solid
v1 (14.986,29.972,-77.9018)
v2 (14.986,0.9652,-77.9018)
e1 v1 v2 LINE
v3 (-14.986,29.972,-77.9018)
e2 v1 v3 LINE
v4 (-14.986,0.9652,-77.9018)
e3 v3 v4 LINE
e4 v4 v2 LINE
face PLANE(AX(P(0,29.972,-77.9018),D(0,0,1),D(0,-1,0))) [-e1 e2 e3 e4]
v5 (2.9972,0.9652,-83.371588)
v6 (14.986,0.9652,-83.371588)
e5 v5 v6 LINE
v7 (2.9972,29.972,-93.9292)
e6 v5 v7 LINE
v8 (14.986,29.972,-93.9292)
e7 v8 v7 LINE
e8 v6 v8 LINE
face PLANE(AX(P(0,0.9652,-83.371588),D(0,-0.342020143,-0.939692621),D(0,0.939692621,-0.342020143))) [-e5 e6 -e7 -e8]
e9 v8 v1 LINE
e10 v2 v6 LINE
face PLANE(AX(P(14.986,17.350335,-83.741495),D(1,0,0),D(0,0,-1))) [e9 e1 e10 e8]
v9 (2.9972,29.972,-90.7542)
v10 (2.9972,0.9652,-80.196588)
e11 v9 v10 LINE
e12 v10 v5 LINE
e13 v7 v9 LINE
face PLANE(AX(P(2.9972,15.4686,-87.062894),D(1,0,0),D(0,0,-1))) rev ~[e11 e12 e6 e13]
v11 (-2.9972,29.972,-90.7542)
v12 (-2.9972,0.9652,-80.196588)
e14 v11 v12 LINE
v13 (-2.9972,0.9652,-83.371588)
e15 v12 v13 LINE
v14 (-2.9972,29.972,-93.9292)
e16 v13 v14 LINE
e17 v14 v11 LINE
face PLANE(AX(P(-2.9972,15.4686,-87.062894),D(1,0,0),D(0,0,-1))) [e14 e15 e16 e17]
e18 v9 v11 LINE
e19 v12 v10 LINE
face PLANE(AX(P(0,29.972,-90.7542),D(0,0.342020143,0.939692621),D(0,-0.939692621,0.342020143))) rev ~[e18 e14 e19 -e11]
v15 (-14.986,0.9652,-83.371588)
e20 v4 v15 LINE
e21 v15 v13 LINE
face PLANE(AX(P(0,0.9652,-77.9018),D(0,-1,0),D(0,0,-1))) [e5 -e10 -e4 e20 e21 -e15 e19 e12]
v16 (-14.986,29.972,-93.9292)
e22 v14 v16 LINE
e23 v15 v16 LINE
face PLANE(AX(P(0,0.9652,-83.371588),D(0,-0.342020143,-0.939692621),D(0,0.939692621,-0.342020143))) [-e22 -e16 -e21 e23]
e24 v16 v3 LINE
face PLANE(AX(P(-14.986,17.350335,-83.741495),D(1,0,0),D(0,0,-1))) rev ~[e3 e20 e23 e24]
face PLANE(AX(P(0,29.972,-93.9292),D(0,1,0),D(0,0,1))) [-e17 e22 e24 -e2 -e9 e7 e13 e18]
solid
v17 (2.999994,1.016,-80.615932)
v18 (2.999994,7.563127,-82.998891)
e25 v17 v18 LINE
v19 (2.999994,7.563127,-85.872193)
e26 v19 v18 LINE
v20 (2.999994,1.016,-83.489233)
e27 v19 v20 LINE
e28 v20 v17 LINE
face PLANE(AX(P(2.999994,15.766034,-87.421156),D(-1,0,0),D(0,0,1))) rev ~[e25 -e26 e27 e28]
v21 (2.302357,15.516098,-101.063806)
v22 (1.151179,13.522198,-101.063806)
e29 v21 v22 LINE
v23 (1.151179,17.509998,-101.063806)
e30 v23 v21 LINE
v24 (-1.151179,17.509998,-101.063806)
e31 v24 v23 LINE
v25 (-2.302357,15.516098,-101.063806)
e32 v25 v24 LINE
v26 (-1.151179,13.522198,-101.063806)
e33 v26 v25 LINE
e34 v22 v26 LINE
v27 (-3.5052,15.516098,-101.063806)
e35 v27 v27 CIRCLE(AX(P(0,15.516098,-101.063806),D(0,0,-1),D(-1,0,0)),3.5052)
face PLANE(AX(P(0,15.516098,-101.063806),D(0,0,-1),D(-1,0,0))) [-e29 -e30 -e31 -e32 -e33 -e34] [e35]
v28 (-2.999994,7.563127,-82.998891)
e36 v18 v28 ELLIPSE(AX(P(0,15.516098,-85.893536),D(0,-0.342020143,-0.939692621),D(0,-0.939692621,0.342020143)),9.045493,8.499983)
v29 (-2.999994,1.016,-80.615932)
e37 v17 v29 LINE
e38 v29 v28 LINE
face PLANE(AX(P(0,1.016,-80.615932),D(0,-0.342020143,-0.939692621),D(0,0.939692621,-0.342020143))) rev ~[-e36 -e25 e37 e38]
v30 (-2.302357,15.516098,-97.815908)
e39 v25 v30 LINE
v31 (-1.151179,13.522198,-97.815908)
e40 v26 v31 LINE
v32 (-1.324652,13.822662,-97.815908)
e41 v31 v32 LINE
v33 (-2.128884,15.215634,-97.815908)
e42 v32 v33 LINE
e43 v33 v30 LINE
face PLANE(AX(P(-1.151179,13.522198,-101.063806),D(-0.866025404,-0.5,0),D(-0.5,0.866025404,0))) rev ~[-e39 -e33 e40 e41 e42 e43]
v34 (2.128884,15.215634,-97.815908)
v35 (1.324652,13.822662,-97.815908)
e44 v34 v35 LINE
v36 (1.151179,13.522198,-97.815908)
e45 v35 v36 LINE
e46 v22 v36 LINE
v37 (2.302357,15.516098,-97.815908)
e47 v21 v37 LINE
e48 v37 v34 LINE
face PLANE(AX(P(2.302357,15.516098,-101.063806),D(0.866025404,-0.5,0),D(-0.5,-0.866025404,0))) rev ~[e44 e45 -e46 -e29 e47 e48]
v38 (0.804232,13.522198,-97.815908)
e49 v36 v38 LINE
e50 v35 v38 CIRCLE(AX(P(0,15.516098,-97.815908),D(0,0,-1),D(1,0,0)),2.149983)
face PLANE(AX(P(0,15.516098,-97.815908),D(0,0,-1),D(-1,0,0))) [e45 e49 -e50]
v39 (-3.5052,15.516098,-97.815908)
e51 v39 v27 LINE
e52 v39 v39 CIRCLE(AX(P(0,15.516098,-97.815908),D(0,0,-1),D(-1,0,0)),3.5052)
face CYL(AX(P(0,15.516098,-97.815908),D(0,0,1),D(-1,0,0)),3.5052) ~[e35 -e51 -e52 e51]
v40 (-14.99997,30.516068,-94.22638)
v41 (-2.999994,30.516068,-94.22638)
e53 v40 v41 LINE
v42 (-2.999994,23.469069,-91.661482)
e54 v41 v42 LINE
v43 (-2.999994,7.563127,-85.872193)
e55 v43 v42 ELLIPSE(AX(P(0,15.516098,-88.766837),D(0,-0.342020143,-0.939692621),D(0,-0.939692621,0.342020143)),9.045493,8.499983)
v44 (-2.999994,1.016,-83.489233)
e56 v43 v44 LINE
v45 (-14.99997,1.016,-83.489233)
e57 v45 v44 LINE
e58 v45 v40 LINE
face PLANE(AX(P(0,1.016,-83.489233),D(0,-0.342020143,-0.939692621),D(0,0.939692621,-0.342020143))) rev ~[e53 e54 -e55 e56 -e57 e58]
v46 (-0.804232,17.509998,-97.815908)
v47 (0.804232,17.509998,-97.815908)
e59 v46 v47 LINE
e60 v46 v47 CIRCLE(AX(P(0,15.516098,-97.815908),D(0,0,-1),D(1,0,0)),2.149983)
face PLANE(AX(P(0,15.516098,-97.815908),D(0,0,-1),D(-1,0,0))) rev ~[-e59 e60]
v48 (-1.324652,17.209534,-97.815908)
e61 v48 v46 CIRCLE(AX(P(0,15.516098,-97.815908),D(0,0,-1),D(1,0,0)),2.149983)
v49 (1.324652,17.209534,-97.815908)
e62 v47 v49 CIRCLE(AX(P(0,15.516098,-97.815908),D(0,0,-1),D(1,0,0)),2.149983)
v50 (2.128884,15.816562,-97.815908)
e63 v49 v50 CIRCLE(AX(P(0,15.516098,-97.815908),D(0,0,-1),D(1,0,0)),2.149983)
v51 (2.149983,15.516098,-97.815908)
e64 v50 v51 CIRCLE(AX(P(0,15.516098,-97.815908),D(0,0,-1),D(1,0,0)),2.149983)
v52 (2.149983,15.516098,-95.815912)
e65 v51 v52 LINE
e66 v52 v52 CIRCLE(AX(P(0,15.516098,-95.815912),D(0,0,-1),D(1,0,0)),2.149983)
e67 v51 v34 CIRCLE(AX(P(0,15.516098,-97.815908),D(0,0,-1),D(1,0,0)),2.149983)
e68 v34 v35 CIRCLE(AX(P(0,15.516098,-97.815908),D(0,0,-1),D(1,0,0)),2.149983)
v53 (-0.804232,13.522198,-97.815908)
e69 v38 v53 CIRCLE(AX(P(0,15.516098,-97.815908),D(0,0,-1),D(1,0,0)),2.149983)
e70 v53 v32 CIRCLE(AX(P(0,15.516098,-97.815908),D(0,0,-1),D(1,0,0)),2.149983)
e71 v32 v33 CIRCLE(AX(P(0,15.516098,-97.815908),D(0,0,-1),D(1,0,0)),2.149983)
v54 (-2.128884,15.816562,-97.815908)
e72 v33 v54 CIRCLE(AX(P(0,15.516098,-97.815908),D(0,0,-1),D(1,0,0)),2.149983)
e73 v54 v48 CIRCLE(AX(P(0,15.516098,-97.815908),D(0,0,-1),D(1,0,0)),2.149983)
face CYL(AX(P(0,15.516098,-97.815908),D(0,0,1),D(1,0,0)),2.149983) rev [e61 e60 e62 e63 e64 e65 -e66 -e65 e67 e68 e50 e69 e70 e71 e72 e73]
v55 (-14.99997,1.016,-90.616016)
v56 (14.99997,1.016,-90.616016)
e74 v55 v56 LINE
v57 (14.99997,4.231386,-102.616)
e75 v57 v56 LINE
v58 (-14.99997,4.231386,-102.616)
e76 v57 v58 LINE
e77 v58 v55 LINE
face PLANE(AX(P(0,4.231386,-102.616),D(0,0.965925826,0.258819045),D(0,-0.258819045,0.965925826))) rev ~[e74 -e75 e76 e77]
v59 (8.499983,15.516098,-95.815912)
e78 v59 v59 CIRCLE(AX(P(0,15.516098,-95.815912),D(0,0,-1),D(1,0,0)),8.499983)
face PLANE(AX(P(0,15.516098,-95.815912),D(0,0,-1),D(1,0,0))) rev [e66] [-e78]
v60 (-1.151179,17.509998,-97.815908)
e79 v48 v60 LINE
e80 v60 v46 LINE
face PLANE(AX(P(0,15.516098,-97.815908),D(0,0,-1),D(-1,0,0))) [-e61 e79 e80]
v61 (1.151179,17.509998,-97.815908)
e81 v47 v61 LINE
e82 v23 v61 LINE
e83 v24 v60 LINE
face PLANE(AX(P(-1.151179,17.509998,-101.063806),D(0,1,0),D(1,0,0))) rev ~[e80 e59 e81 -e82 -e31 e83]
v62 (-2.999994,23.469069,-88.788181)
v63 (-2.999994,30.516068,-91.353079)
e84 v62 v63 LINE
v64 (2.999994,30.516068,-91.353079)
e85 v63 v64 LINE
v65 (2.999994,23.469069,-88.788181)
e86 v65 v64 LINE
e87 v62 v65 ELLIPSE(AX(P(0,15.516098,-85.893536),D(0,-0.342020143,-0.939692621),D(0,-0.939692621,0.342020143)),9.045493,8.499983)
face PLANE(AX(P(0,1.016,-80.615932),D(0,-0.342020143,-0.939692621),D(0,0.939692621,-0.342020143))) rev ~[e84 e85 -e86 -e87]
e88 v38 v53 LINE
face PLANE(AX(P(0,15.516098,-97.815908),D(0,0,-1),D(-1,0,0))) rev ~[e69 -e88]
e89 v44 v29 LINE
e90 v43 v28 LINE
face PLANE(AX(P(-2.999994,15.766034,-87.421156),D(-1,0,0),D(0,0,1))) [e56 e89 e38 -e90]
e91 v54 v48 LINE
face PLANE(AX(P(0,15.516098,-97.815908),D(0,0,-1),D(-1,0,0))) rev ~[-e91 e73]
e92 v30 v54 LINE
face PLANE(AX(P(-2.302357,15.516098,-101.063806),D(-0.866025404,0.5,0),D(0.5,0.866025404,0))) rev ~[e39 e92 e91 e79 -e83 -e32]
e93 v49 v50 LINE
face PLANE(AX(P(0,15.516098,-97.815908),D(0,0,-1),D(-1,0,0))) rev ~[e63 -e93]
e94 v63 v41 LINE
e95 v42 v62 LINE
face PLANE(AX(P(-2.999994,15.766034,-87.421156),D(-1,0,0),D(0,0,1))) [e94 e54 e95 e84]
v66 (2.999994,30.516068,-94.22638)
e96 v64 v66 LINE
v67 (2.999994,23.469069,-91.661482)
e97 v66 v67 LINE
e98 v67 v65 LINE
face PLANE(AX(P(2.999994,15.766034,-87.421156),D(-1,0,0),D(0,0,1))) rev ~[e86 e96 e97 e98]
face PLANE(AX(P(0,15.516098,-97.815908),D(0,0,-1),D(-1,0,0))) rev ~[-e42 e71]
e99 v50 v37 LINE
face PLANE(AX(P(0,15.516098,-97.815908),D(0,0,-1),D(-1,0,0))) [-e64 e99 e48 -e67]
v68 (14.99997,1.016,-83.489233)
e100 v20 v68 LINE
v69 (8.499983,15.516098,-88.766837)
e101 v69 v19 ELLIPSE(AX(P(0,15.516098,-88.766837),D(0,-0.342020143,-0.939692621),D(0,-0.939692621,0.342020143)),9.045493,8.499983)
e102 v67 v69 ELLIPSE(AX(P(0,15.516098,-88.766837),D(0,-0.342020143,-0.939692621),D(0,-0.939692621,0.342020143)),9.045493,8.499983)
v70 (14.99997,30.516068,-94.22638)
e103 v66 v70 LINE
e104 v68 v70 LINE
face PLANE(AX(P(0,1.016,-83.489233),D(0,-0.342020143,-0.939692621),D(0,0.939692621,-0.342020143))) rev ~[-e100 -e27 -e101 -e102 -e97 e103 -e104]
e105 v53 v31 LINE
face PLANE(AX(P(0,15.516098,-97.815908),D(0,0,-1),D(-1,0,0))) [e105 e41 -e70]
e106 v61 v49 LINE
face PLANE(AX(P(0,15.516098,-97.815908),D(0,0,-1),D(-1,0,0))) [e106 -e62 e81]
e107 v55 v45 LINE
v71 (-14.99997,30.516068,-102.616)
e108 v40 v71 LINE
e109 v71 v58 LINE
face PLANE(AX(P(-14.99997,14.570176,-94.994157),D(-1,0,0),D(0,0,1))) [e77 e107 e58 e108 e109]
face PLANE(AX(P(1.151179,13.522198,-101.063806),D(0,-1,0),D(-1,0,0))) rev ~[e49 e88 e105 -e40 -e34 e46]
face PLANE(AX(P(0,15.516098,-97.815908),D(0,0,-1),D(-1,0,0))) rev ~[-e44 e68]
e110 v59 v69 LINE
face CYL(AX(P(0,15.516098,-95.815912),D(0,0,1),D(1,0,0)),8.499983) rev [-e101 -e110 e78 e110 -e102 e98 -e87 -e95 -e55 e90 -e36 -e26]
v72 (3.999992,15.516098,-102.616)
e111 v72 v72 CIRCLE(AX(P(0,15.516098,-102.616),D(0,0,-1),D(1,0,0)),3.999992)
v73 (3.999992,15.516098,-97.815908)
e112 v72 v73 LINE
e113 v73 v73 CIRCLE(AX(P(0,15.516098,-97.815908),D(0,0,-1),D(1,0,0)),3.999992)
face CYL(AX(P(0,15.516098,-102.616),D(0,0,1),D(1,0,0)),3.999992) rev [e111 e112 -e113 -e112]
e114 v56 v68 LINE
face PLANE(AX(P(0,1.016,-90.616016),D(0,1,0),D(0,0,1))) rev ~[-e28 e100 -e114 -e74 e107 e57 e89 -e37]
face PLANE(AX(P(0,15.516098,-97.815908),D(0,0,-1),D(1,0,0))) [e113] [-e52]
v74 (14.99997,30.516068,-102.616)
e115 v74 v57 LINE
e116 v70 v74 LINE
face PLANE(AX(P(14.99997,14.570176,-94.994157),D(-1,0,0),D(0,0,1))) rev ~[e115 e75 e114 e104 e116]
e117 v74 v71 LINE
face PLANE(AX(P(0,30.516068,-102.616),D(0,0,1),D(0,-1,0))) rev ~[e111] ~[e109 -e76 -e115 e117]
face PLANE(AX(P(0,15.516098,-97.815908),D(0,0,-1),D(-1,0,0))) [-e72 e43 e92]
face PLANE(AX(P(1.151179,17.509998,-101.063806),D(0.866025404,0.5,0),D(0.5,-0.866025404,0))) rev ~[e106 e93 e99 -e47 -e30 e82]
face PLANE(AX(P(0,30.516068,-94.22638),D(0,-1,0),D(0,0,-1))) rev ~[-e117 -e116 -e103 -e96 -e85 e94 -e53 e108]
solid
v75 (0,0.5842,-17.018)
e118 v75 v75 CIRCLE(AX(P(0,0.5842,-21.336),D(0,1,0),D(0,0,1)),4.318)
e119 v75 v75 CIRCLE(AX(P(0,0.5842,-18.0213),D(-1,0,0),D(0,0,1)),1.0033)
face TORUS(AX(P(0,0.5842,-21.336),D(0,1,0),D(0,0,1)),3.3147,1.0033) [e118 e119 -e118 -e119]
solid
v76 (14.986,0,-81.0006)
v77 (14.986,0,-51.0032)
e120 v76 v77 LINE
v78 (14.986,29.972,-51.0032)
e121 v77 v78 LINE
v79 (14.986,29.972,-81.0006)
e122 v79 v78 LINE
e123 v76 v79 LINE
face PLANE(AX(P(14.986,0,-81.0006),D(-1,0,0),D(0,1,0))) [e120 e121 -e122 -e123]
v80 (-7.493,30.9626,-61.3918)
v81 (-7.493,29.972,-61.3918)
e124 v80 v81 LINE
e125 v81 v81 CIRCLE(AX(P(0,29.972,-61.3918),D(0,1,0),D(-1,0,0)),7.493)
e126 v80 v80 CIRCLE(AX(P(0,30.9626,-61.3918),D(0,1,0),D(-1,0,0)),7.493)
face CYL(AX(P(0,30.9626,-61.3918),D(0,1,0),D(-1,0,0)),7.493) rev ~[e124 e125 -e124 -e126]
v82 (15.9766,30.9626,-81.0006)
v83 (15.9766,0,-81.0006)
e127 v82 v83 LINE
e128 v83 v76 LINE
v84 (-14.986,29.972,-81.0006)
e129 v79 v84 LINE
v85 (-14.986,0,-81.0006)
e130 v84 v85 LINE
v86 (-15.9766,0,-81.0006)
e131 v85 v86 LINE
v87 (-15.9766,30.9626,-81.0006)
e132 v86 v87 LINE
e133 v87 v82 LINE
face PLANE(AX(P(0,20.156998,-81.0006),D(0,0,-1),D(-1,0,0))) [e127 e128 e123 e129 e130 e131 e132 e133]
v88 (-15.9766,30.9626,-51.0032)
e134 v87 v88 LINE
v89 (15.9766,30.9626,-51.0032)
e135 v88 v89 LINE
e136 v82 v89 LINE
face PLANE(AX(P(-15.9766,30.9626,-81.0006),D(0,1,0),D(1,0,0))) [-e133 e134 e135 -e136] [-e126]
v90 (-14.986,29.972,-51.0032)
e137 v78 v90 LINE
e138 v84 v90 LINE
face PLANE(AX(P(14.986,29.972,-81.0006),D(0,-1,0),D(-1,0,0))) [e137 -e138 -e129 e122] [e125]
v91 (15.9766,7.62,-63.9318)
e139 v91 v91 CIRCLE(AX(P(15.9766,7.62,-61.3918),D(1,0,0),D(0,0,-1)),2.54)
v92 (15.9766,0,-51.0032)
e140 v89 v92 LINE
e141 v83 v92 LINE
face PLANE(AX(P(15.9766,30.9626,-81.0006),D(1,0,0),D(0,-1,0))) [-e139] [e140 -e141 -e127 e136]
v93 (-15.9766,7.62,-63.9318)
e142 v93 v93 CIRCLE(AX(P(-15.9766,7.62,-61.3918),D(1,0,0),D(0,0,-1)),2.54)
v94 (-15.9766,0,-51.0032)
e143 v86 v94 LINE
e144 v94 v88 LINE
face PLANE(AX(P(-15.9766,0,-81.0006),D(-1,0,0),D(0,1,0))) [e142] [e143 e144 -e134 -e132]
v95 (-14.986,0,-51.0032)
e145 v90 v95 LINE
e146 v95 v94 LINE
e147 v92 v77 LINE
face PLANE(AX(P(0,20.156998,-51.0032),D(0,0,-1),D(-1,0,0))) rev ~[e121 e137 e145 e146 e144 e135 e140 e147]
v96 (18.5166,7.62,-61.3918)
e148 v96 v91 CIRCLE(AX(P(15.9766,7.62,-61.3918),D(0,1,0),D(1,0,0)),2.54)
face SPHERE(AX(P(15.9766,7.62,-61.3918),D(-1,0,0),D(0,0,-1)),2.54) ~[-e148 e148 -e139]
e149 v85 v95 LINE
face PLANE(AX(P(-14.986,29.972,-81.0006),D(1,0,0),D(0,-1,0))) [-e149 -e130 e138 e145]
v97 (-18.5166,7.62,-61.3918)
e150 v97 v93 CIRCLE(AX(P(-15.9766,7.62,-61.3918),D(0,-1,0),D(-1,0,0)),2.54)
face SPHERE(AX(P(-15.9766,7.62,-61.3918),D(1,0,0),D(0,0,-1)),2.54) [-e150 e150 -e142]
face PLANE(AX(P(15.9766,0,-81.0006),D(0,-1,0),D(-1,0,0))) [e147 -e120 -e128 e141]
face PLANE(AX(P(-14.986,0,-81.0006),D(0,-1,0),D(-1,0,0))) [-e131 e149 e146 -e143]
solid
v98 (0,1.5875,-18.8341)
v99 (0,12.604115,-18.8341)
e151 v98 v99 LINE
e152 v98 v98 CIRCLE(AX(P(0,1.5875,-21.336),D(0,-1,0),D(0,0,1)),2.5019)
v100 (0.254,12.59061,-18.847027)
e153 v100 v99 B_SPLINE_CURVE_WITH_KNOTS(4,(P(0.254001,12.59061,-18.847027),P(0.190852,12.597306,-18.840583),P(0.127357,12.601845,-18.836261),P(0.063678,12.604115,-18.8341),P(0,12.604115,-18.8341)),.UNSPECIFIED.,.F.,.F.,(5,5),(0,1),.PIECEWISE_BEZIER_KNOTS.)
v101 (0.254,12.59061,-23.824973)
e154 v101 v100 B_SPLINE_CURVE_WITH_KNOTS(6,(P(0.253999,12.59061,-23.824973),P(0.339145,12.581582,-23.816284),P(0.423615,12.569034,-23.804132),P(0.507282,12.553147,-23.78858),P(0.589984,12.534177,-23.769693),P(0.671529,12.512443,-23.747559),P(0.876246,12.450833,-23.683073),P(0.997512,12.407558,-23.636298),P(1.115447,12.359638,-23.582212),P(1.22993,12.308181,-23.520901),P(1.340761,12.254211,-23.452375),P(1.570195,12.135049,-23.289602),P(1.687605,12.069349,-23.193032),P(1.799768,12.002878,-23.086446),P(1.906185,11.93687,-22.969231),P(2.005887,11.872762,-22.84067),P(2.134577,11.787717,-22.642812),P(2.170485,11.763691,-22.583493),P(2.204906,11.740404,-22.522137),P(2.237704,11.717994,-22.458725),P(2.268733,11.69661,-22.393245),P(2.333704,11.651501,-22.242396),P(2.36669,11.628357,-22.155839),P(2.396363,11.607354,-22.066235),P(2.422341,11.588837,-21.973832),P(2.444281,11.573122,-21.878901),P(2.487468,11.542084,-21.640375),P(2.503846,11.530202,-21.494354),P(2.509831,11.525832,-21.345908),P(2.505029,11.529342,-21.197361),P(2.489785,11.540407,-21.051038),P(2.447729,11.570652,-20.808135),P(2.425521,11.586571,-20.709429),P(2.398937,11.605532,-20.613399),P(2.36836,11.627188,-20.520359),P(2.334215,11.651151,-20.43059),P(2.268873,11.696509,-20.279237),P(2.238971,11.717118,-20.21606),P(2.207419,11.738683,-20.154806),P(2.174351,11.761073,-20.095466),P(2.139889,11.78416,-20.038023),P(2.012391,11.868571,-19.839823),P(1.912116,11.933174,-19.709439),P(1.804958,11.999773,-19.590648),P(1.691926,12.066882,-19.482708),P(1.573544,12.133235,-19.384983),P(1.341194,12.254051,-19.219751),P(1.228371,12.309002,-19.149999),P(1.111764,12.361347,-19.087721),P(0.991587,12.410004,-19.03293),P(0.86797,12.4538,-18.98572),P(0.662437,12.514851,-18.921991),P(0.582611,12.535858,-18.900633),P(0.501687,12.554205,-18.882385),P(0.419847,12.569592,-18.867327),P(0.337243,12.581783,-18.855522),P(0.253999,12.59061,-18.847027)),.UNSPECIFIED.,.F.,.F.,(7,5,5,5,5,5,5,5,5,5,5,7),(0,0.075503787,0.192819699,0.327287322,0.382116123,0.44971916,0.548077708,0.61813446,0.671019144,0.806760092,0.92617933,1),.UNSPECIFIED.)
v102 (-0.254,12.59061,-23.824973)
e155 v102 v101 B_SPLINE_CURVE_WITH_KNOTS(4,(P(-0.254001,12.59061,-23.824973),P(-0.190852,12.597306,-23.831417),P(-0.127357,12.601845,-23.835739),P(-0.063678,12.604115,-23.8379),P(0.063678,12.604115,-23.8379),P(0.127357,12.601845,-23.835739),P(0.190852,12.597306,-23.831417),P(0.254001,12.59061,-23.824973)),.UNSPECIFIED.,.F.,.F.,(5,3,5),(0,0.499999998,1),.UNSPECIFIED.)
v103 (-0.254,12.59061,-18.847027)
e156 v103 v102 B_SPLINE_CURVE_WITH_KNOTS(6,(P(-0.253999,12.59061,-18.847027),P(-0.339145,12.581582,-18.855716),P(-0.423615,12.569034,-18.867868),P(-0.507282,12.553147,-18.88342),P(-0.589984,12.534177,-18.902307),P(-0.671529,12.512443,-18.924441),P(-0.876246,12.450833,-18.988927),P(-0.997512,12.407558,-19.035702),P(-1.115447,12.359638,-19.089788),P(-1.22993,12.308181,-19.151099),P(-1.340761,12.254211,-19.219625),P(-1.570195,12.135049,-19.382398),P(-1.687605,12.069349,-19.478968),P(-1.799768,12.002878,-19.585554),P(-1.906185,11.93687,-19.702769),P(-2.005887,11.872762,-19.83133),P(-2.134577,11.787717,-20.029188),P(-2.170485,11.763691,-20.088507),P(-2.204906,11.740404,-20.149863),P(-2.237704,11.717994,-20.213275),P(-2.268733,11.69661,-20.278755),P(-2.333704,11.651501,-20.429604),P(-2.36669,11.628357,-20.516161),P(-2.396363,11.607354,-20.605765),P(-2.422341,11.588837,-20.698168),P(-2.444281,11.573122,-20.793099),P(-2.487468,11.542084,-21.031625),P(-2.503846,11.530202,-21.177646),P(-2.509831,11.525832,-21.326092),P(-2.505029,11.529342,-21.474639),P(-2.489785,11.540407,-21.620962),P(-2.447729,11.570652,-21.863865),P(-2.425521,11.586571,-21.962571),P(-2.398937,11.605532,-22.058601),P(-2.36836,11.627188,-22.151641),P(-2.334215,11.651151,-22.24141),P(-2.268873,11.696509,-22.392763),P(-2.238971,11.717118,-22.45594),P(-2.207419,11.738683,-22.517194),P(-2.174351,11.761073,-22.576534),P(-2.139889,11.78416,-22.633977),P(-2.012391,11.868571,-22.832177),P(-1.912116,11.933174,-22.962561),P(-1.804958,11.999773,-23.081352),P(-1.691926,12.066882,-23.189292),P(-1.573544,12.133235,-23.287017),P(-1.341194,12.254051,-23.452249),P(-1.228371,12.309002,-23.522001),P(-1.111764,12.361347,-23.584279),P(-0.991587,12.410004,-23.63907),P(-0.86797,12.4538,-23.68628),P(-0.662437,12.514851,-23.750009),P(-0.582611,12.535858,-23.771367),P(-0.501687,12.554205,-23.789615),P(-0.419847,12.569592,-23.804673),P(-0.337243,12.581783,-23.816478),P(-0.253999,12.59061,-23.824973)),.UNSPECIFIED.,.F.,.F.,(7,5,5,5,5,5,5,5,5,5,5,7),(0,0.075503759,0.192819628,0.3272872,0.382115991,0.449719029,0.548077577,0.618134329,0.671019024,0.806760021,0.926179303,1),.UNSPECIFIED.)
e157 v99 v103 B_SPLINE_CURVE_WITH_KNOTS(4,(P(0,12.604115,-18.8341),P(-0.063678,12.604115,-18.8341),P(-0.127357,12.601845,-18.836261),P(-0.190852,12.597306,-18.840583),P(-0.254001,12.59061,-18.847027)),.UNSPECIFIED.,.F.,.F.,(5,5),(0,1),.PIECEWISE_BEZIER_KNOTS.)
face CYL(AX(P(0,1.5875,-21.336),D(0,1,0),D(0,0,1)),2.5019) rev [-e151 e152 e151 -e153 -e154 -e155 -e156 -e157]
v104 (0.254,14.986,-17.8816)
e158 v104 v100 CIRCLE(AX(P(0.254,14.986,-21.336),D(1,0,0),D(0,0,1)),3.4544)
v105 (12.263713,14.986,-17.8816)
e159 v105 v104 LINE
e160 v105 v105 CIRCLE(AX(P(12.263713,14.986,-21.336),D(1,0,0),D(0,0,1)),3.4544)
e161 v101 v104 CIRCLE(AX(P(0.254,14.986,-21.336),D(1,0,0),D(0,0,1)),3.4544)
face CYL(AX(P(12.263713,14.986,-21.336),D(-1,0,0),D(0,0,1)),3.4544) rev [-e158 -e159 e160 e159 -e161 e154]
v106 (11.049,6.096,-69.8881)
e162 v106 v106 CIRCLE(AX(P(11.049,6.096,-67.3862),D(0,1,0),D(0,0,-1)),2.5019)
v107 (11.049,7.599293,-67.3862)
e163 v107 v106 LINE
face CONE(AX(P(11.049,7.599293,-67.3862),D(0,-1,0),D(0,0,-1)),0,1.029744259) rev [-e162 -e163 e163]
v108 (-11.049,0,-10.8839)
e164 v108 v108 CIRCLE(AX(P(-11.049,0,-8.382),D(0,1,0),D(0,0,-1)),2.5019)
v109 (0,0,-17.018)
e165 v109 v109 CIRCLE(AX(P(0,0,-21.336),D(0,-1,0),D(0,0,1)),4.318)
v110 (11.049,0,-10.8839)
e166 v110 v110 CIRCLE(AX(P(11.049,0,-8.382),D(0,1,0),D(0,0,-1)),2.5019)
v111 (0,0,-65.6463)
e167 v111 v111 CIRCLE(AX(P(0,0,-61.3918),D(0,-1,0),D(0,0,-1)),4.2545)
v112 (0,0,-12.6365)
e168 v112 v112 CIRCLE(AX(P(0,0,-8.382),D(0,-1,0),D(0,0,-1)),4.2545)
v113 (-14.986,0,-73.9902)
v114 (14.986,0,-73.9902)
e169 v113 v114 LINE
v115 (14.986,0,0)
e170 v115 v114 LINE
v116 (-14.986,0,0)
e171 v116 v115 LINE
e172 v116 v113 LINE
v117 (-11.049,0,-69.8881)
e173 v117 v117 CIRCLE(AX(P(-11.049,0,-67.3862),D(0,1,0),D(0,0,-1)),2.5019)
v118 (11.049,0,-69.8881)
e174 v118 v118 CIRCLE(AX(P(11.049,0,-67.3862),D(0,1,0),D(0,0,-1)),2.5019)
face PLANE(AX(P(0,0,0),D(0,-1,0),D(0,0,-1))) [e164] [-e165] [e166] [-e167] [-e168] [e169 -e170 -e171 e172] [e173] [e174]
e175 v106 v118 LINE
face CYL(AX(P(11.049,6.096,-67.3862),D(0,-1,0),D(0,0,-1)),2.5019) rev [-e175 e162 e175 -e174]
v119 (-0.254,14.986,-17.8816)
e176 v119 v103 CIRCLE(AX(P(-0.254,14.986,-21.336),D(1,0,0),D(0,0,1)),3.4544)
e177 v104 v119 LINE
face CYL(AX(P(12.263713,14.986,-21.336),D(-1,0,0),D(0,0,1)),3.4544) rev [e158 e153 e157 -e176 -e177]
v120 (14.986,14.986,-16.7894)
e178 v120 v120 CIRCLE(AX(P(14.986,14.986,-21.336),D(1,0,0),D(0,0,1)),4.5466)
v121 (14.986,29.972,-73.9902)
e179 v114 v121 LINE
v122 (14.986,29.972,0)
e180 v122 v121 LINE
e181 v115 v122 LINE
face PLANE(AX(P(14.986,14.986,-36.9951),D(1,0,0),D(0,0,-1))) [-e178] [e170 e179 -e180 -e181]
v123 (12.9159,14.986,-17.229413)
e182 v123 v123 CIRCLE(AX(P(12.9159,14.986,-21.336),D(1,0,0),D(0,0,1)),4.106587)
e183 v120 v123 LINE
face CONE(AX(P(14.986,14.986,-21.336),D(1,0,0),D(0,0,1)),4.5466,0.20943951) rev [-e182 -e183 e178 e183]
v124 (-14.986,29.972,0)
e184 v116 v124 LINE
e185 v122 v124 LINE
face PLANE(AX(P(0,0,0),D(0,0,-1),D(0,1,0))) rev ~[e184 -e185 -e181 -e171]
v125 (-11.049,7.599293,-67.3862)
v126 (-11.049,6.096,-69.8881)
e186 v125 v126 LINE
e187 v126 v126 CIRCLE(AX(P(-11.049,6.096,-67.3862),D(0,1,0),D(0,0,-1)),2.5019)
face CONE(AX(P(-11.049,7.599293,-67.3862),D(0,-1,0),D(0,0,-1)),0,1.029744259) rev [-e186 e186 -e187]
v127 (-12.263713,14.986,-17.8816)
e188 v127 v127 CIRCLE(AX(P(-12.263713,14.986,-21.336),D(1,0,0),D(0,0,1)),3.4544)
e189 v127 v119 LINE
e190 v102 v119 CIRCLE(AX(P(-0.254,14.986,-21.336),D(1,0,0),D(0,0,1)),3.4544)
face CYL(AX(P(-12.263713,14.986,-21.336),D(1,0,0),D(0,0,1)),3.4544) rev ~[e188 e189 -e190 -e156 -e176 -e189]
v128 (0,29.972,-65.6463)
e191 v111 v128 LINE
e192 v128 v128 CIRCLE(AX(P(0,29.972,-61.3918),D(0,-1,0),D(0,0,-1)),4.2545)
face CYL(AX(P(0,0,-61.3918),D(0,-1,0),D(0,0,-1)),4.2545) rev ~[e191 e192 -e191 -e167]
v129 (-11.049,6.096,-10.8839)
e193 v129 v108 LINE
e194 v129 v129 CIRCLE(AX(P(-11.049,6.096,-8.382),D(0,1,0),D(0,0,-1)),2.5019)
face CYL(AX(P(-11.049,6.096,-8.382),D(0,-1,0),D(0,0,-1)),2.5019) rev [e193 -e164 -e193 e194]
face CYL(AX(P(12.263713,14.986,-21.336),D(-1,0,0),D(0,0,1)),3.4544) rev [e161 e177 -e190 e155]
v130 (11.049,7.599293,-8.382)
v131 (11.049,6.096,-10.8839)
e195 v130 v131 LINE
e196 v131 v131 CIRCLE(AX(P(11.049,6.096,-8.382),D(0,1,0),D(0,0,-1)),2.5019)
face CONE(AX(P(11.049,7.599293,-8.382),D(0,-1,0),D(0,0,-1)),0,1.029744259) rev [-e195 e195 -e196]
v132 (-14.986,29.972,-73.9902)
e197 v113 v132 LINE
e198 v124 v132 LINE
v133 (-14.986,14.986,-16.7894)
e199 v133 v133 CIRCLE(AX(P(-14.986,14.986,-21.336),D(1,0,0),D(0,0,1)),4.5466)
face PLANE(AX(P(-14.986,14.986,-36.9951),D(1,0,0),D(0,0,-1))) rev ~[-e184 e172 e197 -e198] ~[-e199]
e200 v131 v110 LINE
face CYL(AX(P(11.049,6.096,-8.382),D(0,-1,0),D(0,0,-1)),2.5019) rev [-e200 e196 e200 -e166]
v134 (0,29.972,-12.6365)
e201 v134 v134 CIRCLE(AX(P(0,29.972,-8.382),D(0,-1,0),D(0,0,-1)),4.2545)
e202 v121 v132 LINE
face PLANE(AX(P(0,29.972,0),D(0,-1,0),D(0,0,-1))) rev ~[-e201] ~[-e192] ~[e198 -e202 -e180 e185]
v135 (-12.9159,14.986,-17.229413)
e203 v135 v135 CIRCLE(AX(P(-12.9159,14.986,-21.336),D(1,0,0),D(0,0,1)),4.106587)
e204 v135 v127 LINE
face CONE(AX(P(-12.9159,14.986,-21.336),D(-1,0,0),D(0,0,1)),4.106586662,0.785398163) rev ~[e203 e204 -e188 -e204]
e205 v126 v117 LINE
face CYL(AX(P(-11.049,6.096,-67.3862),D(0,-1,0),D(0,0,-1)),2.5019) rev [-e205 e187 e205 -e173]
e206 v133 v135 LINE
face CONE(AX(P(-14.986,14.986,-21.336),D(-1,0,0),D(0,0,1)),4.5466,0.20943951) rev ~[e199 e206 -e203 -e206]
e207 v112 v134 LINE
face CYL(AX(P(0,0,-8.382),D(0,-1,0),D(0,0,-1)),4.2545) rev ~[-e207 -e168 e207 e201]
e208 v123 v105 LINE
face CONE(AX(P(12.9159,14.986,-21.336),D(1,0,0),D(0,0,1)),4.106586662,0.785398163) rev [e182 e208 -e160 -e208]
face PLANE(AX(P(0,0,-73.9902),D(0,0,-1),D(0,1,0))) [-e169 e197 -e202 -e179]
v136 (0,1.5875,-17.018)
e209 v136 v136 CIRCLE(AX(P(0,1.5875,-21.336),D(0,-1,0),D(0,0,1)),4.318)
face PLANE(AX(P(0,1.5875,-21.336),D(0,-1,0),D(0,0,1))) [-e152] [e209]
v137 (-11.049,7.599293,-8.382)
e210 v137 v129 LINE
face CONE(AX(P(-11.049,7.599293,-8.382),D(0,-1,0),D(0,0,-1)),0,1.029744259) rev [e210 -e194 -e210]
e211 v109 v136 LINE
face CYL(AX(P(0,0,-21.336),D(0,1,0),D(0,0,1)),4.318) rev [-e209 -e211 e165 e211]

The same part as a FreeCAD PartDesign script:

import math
import FreeCAD as App
import Part
import Sketcher

V = App.Vector
Q = App.Units.Quantity


def add_polygon(sketch, points):
    """Adds a closed chain of lines whose ends are joined by coincident constraints."""
    first, n = sketch.GeometryCount, len(points)
    for a, b in zip(points, points[1:] + points[:1]):
        sketch.addGeometry(Part.LineSegment(App.Vector(*a, 0), App.Vector(*b, 0)), False)
    for i in range(n):
        sketch.addConstraint(Sketcher.Constraint("Coincident", first + i, 2, first + (i + 1) % n, 1))

doc = App.newDocument("Part")
body = doc.addObject("PartDesign::Body", "Body")

# Sketch on YZ plane
sketch1 = doc.addObject("Sketcher::SketchObject", "Sketch")
body.addObject(sketch1)
sketch1.AttachmentSupport = (doc.YZ_Plane, [""])
sketch1.MapMode = "FlatFace"
add_polygon(sketch1, [(30, 0), (0, 0), (0, -74), (30, -74)])  # lines 0-3
sketch1.addConstraint([
    Sketcher.Constraint("Horizontal", 0),
    Sketcher.Constraint("Vertical", 1),
    Sketcher.Constraint("Horizontal", 2),
    Sketcher.Constraint("Vertical", 3),
    Sketcher.Constraint("Coincident", 0, 2, -1, 1),
    Sketcher.Constraint("DistanceX", 0, 2, 0, 1, Q("1.18 in")),
    Sketcher.Constraint("DistanceY", 1, 2, 1, 1, Q("2.913 in")),
])
pad1 = doc.addObject("PartDesign::Pad", "Pad")
body.addObject(pad1)
pad1.Profile = sketch1
pad1.Length = Q("1.18 in")
pad1.Midplane = True

# Sketch on XZ plane
sketch2 = doc.addObject("Sketcher::SketchObject", "Sketch001")
body.addObject(sketch2)
sketch2.AttachmentSupport = (doc.XZ_Plane, [""])
sketch2.MapMode = "FlatFace"
sketch2.addGeometry([
    Part.Circle(V(0, -8.4, 0), V(0, 0, 1), 4.3),
    Part.Circle(V(0, -61.4, 0), V(0, 0, 1), 4.3),
], False)
sketch2.addConstraint([
    Sketcher.Constraint("Equal", 0, 1),
    Sketcher.Constraint("PointOnObject", 0, 3, -2),
    Sketcher.Constraint("PointOnObject", 1, 3, -2),
    Sketcher.Constraint("Diameter", 0, Q("0.335 in")),
    Sketcher.Constraint("DistanceY", 0, 3, -1, 1, Q("0.33 in")),
    Sketcher.Constraint("DistanceY", 1, 3, -1, 1, Q("2.417 in")),
])
pocket1 = doc.addObject("PartDesign::Pocket", "Pocket")
body.addObject(pocket1)
pocket1.Profile = sketch2
pocket1.Length = Q("1.18 in")

# Sketch on YZ plane
sketch3 = doc.addObject("Sketcher::SketchObject", "Sketch002")
body.addObject(sketch3)
sketch3.AttachmentSupport = (doc.YZ_Plane, [""])
sketch3.MapMode = "FlatFace"
sketch3.AttachmentOffset = App.Placement(V(0, 0, -0.435 * 25.4), App.Rotation())
add_polygon(sketch3, [(7.6, -8.4), (0, -8.4), (0, -10.9), (6.1, -10.9)])  # lines 0-3
sketch3.addGeometry(Part.LineSegment(V(0, -8.4, 0), V(7.6, -8.4, 0)), True)  # axis
sketch3.addConstraint([
    Sketcher.Constraint("Horizontal", 0),
    Sketcher.Constraint("Vertical", 1),
    Sketcher.Constraint("Horizontal", 2),
    Sketcher.Constraint("Horizontal", 4),
    Sketcher.Constraint("Coincident", 4, 1, 0, 2),
    Sketcher.Constraint("PointOnObject", 0, 2, -2),
    Sketcher.Constraint("Equal", 0, 4),
    Sketcher.Constraint("Angle", 3, Q("59 deg")),
    Sketcher.Constraint("DistanceX", 2, 1, 2, 2, Q("0.24 in")),
    Sketcher.Constraint("DistanceY", 0, 2, -1, 1, Q("0.33 in")),
    Sketcher.Constraint("DistanceY", 1, 2, 1, 1, Q("0.0985 in")),
])
groove = doc.addObject("PartDesign::Groove", "Groove")
body.addObject(groove)
groove.Profile = sketch3
groove.ReferenceAxis = (sketch3, ["Axis0"])
groove.Angle = 360
doc.recompute()

linearpattern = doc.addObject("PartDesign::LinearPattern", "LinearPattern")
body.addObject(linearpattern)
linearpattern.Originals = [groove]
linearpattern.Direction = (doc.Z_Axis, [""])
linearpattern.Mode = "offset"
linearpattern.Offset = Q("2.323 in")
linearpattern.Occurrences = 2
linearpattern.Reversed = True
body.Tip = linearpattern
doc.recompute()

linearpattern2 = doc.addObject("PartDesign::LinearPattern", "LinearPattern001")
body.addObject(linearpattern2)
linearpattern2.Originals = [groove]
linearpattern2.Direction = (doc.X_Axis, [""])
linearpattern2.Mode = "offset"
linearpattern2.Offset = Q("0.87 in")
linearpattern2.Occurrences = 2
body.Tip = linearpattern2
doc.recompute()

datumline = doc.addObject("PartDesign::Line", "DatumLine")
body.addObject(datumline)
datumline.Placement = App.Placement(V(0, 0, 0), App.Rotation(V(0, 0, 1), V(0.350725799, 0, -0.936478197)))
linearpattern3 = doc.addObject("PartDesign::LinearPattern", "LinearPattern002")
body.addObject(linearpattern3)
linearpattern3.Originals = [groove]
linearpattern3.Direction = (datumline, [""])
linearpattern3.Mode = "offset"
linearpattern3.Offset = 63.006486
linearpattern3.Occurrences = 2
body.Tip = linearpattern3

# Sketch on XZ plane
sketch4 = doc.addObject("Sketcher::SketchObject", "Sketch003")
body.addObject(sketch4)
sketch4.AttachmentSupport = (doc.XZ_Plane, [""])
sketch4.MapMode = "FlatFace"
sketch4.AttachmentOffset = App.Placement(V(0, 0, -0.59 * 25.4), App.Rotation())
add_polygon(sketch4, [(15, -25.9), (15, -21.3), (-0.3, -21.3), (-0.3, -24.8), (12.3, -24.8), (12.9, -25.4)])  # lines 0-5
sketch4.addGeometry(Part.LineSegment(V(-0.3, -21.3, 0), V(15, -21.3, 0)), True)  # axis
sketch4.addConstraint([
    Sketcher.Constraint("Vertical", 0),
    Sketcher.Constraint("Horizontal", 1),
    Sketcher.Constraint("Vertical", 2),
    Sketcher.Constraint("Horizontal", 3),
    Sketcher.Constraint("Horizontal", 6),
    Sketcher.Constraint("Coincident", 6, 1, 1, 2),
    Sketcher.Constraint("Vertical", 5, 2, 6, 2),
    Sketcher.Constraint("DistanceX", 1, 2, 1, 1, Q("0.6 in")),
    Sketcher.Constraint("Angle", 4, Q("-45 deg")),
    Sketcher.Constraint("Angle", 5, Q("-12 deg")),
    Sketcher.Constraint("DistanceY", 0, 1, 0, 2, Q("0.179 in")),
    Sketcher.Constraint("DistanceY", 2, 2, 2, 1, Q("0.136 in")),
    Sketcher.Constraint("DistanceX", -1, 1, 0, 2, Q("0.59 in")),
    Sketcher.Constraint("DistanceY", 0, 2, -1, 1, Q("0.84 in")),
    Sketcher.Constraint("DistanceX", -1, 1, 4, 2, Q("0.5085 in")),
])
groove2 = doc.addObject("PartDesign::Groove", "Groove001")
body.addObject(groove2)
groove2.Profile = sketch4
groove2.ReferenceAxis = (sketch4, ["Axis0"])
groove2.Angle = 360
doc.recompute()

mirrored = doc.addObject("PartDesign::Mirrored", "Mirrored")
body.addObject(mirrored)
mirrored.Originals = [groove2]
mirrored.MirrorPlane = (doc.YZ_Plane, [""])
body.Tip = mirrored

# Sketch on YZ plane
sketch5 = doc.addObject("Sketcher::SketchObject", "Sketch004")
body.addObject(sketch5)
sketch5.AttachmentSupport = (doc.YZ_Plane, [""])
sketch5.MapMode = "FlatFace"
add_polygon(sketch5, [(0, -25.7), (1.6, -25.7), (1.6, -23.8), (15, -23.8), (15, -21.3), (0, -21.3)])  # lines 0-5
sketch5.addGeometry(Part.LineSegment(V(15, -21.3, 0), V(0, -21.3, 0)), True)  # axis
sketch5.addConstraint([
    Sketcher.Constraint("Horizontal", 0),
    Sketcher.Constraint("Vertical", 1),
    Sketcher.Constraint("Horizontal", 2),
    Sketcher.Constraint("Vertical", 3),
    Sketcher.Constraint("Horizontal", 4),
    Sketcher.Constraint("Vertical", 5),
    Sketcher.Constraint("Horizontal", 6),
    Sketcher.Constraint("Coincident", 6, 1, 3, 2),
    Sketcher.Constraint("PointOnObject", 4, 2, -2),
    Sketcher.Constraint("PointOnObject", 6, 2, -2),
    Sketcher.Constraint("DistanceX", 4, 2, 4, 1, Q("0.59 in")),
    Sketcher.Constraint("DistanceY", 5, 2, 5, 1, Q("0.17 in")),
    Sketcher.Constraint("DistanceX", 0, 1, 0, 2, Q("0.0625 in")),
    Sketcher.Constraint("DistanceY", 0, 2, -1, 1, Q("1.01 in")),
    Sketcher.Constraint("DistanceY", 1, 1, 1, 2, Q("0.0715 in")),
])
groove3 = doc.addObject("PartDesign::Groove", "Groove002")
body.addObject(groove3)
groove3.Profile = sketch5
groove3.ReferenceAxis = (sketch5, ["Axis0"])
groove3.Angle = 360
body2 = doc.addObject("PartDesign::Body", "Body001")

# Sketch on YZ plane
sketch6 = doc.addObject("Sketcher::SketchObject", "Sketch005")
body2.addObject(sketch6)
sketch6.AttachmentSupport = (doc.getObject("YZ_Plane001"), [""])
sketch6.MapMode = "FlatFace"
add_polygon(sketch6, [(31, -103), (31, -94), (1, -83), (1, -91), (4, -103)])  # lines 0-4
sketch6.addConstraint([
    Sketcher.Constraint("Vertical", 0),
    Sketcher.Constraint("Vertical", 2),
    Sketcher.Constraint("Horizontal", 4),
    Sketcher.Constraint("Angle", 1, Q("160 deg")),
    Sketcher.Constraint("Angle", 3, Q("-75 deg")),
    Sketcher.Constraint("DistanceX", -1, 1, 1, 2, Q("0.04 in")),
    Sketcher.Constraint("DistanceY", 3, 2, -1, 1, Q("4.04 in")),
    Sketcher.Constraint("DistanceY", 0, 1, 0, 2, Q("0.3303 in")),
    Sketcher.Constraint("DistanceX", 4, 1, 4, 2, 26.284682),
    Sketcher.Constraint("DistanceY", 2, 2, 2, 1, 7.126783),
])
pad2 = doc.addObject("PartDesign::Pad", "Pad001")
body2.addObject(pad2)
pad2.Profile = sketch6
pad2.Length = Q("1.1811 in")
pad2.Midplane = True

# Sketch on YZ plane
sketch7 = doc.addObject("Sketcher::SketchObject", "Sketch006")
body2.addObject(sketch7)
sketch7.AttachmentSupport = (doc.getObject("YZ_Plane001"), [""])
sketch7.MapMode = "FlatFace"
add_polygon(sketch7, [(1, -83.5), (30.5, -94.2), (30.5, -91.4), (1, -80.6)])  # lines 0-3
sketch7.addConstraint([
    Sketcher.Constraint("Vertical", 1),
    Sketcher.Constraint("Vertical", 3),
    Sketcher.Constraint("Parallel", 0, 2),
    Sketcher.Constraint("Angle", 0, Q("-20 deg")),
    Sketcher.Constraint("DistanceX", -1, 1, 2, 2, Q("0.04 in")),
    Sketcher.Constraint("DistanceY", 1, 1, 1, 2, 2.873301),
    Sketcher.Constraint("DistanceY", 0, 2, -1, 1, Q("3.7097 in")),
    Sketcher.Constraint("DistanceX", -1, 1, 0, 2, 30.516068),
])
pad3 = doc.addObject("PartDesign::Pad", "Pad002")
body2.addObject(pad3)
pad3.Profile = sketch7
pad3.Length = 5.999988
pad3.Midplane = True

# Sketch on YZ plane
sketch8 = doc.addObject("Sketcher::SketchObject", "Sketch007")
body2.addObject(sketch8)
sketch8.AttachmentSupport = (doc.getObject("YZ_Plane001"), [""])
sketch8.MapMode = "FlatFace"
add_polygon(sketch8, [(19.5, -102.6), (19.5, -97.8), (17.7, -97.8), (17.7, -95.8), (24, -95.8), (24, -76.8), (15.5, -76.8), (15.5, -102.6)])  # lines 0-7
sketch8.addGeometry(Part.LineSegment(V(15.5, -76.8, 0), V(15.5, -102.6, 0)), True)  # axis
sketch8.addConstraint([
    Sketcher.Constraint("Vertical", 0),
    Sketcher.Constraint("Horizontal", 1),
    Sketcher.Constraint("Vertical", 2),
    Sketcher.Constraint("Horizontal", 3),
    Sketcher.Constraint("Vertical", 4),
    Sketcher.Constraint("Horizontal", 5),
    Sketcher.Constraint("Vertical", 6),
    Sketcher.Constraint("Horizontal", 7),
    Sketcher.Constraint("Vertical", 8),
    Sketcher.Constraint("Coincident", 8, 1, 5, 2),
    Sketcher.Constraint("Horizontal", 7, 2, 8, 2),
    Sketcher.Constraint("DistanceX", 3, 1, 3, 2, Q("0.25 in")),
    Sketcher.Constraint("DistanceY", 4, 1, 4, 2, Q("0.75 in")),
    Sketcher.Constraint("DistanceY", 6, 2, -1, 1, Q("4.04 in")),
    Sketcher.Constraint("DistanceX", 1, 2, 1, 1, 1.850009),
    Sketcher.Constraint("DistanceX", 7, 1, 7, 2, 3.999992),
    Sketcher.Constraint("DistanceY", 0, 1, 0, 2, 4.800092),
    Sketcher.Constraint("DistanceY", 2, 1, 2, 2, 1.999996),
    Sketcher.Constraint("DistanceX", -1, 1, 0, 2, 19.51609),
])
groove4 = doc.addObject("PartDesign::Groove", "Groove003")
body2.addObject(groove4)
groove4.Profile = sketch8
groove4.ReferenceAxis = (sketch8, ["Axis0"])
groove4.Angle = 360

# Sketch on XY plane
sketch9 = doc.addObject("Sketcher::SketchObject", "Sketch008")
body2.addObject(sketch9)
sketch9.AttachmentSupport = (doc.getObject("XY_Plane001"), [""])
sketch9.MapMode = "FlatFace"
sketch9.AttachmentOffset = App.Placement(V(0, 0, -97.815908), App.Rotation())
sketch9.addGeometry(Part.Circle(V(0, 15.5, 0), V(0, 0, 1), 3.5), False)
sketch9.addConstraint([
    Sketcher.Constraint("PointOnObject", 0, 3, -2),
    Sketcher.Constraint("Diameter", 0, Q("0.276 in")),
    Sketcher.Constraint("DistanceY", -1, 1, 0, 3, 15.516098),
])
pad4 = doc.addObject("PartDesign::Pad", "Pad003")
body2.addObject(pad4)
pad4.Profile = sketch9
pad4.Length = 3.247898
pad4.Reversed = True

# Sketch on XY plane
sketch10 = doc.addObject("Sketcher::SketchObject", "Sketch009")
body2.addObject(sketch10)
sketch10.AttachmentSupport = (doc.getObject("XY_Plane001"), [""])
sketch10.MapMode = "FlatFace"
sketch10.AttachmentOffset = App.Placement(V(0, 0, -101.063806), App.Rotation())
add_polygon(sketch10, [(-2.3, 15.5), (-1.2, 17.5), (1.2, 17.5), (2.3, 15.5), (1.2, 13.5), (-1.2, 13.5)])  # lines 0-5
sketch10.addConstraint([
    Sketcher.Constraint("Horizontal", 1),
    Sketcher.Constraint("Horizontal", 4),
    Sketcher.Constraint("Symmetric", 2, 2, 5, 2, -2),
    Sketcher.Constraint("Parallel", 0, 3),
    Sketcher.Constraint("Parallel", 2, 5),
    Sketcher.Constraint("Vertical", 1, 2, 3, 2),
    Sketcher.Constraint("Vertical", 0, 2, 4, 2),
    Sketcher.Constraint("Angle", 0, Q("60 deg")),
    Sketcher.Constraint("DistanceY", 3, 2, 1, 2, Q("0.157 in")),
    Sketcher.Constraint("DistanceX", 1, 1, 1, 2, 2.302357),
    Sketcher.Constraint("DistanceY", -1, 1, 0, 2, 17.509998),
])
pocket2 = doc.addObject("PartDesign::Pocket", "Pocket001")
body2.addObject(pocket2)
pocket2.Profile = sketch10
pocket2.Length = 3.247898
pocket2.Reversed = True
body3 = doc.addObject("PartDesign::Body", "Body002")

# Sketch on YZ plane
sketch11 = doc.addObject("Sketcher::SketchObject", "Sketch010")
body3.addObject(sketch11)
sketch11.AttachmentSupport = (doc.getObject("YZ_Plane002"), [""])
sketch11.MapMode = "FlatFace"
add_polygon(sketch11, [(30, -78), (1, -78), (1, -83), (30, -94)])  # lines 0-3
sketch11.addConstraint([
    Sketcher.Constraint("Horizontal", 0),
    Sketcher.Constraint("Vertical", 1),
    Sketcher.Constraint("Vertical", 3),
    Sketcher.Constraint("Angle", 2, Q("-20 deg")),
    Sketcher.Constraint("DistanceX", 0, 2, 0, 1, Q("1.142 in")),
    Sketcher.Constraint("DistanceY", 3, 1, 3, 2, Q("0.631 in")),
    Sketcher.Constraint("DistanceX", -1, 1, 2, 2, Q("1.18 in")),
    Sketcher.Constraint("DistanceY", 0, 2, -1, 1, Q("3.067 in")),
])
pad5 = doc.addObject("PartDesign::Pad", "Pad004")
body3.addObject(pad5)
pad5.Profile = sketch11
pad5.Length = Q("1.18 in")
pad5.Midplane = True

# Sketch on YZ plane
sketch12 = doc.addObject("Sketcher::SketchObject", "Sketch011")
body3.addObject(sketch12)
sketch12.AttachmentSupport = (doc.getObject("YZ_Plane002"), [""])
sketch12.MapMode = "FlatFace"
add_polygon(sketch12, [(30, -90.8), (1, -80.2), (1, -83.4), (30, -93.9)])  # lines 0-3
sketch12.addConstraint([
    Sketcher.Constraint("Vertical", 1),
    Sketcher.Constraint("Vertical", 3),
    Sketcher.Constraint("Parallel", 0, 2),
    Sketcher.Constraint("Angle", 0, Q("160 deg")),
    Sketcher.Constraint("DistanceY", 1, 2, 1, 1, Q("0.125 in")),
    Sketcher.Constraint("DistanceX", -1, 1, 2, 2, Q("1.18 in")),
    Sketcher.Constraint("DistanceX", -1, 1, 0, 2, Q("0.038 in")),
    Sketcher.Constraint("DistanceY", 2, 2, -1, 1, Q("3.698 in")),
])
pocket3 = doc.addObject("PartDesign::Pocket", "Pocket002")
body3.addObject(pocket3)
pocket3.Profile = sketch12
pocket3.Length = Q("0.236 in")
pocket3.Midplane = True
body4 = doc.addObject("PartDesign::Body", "Body003")

# Sketch on YZ plane
sketch13 = doc.addObject("Sketcher::SketchObject", "Sketch012")
body4.addObject(sketch13)
sketch13.AttachmentSupport = (doc.getObject("YZ_Plane003"), [""])
sketch13.MapMode = "FlatFace"
sketch13.addGeometry(Part.Circle(V(0.6, -24.7, 0), V(0, 0, 1), 1), False)
sketch13.addGeometry(Part.LineSegment(V(0.6, -21.3, 0), V(10.6, -21.3, 0)), True)  # axis
sketch13.addConstraint([
    Sketcher.Constraint("Horizontal", 1),
    Sketcher.Constraint("Vertical", 0, 3, 1, 1),
    Sketcher.Constraint("Diameter", 0, Q("0.079 in")),
    Sketcher.Constraint("DistanceY", 1, 1, -1, 1, Q("0.84 in")),
    Sketcher.Constraint("DistanceX", -1, 1, 0, 3, Q("0.023 in")),
    Sketcher.Constraint("DistanceX", 1, 1, 1, 2, 10.0),
    Sketcher.Constraint("DistanceY", 0, 3, -1, 1, Q("0.9705 in")),
])
revolution = doc.addObject("PartDesign::Revolution", "Revolution")
body4.addObject(revolution)
revolution.Profile = sketch13
revolution.ReferenceAxis = (sketch13, ["Axis0"])
revolution.Angle = 360
body5 = doc.addObject("PartDesign::Body", "Body004")

# Sketch on XY plane
sketch14 = doc.addObject("Sketcher::SketchObject", "Sketch013")
body5.addObject(sketch14)
sketch14.AttachmentSupport = (doc.getObject("XY_Plane004"), [""])
sketch14.MapMode = "FlatFace"
sketch14.AttachmentOffset = App.Placement(V(0, 0, -3.189 * 25.4), App.Rotation())
add_polygon(sketch14, [(-15, 30), (-15, 0), (-16, 0), (-16, 31), (16, 31), (16, 0), (15, 0), (15, 30)])  # lines 0-7
sketch14.addConstraint([
    Sketcher.Constraint("Vertical", 0),
    Sketcher.Constraint("Horizontal", 1),
    Sketcher.Constraint("Vertical", 2),
    Sketcher.Constraint("Horizontal", 3),
    Sketcher.Constraint("Vertical", 4),
    Sketcher.Constraint("Horizontal", 5),
    Sketcher.Constraint("Vertical", 6),
    Sketcher.Constraint("Horizontal", 7),
    Sketcher.Constraint("Symmetric", 1, 2, 4, 2, -1, 1),
    Sketcher.Constraint("Symmetric", 0, 2, 5, 2, -2),
    Sketcher.Constraint("Equal", 7, 0),
    Sketcher.Constraint("DistanceX", 7, 2, 7, 1, Q("1.18 in")),
    Sketcher.Constraint("DistanceX", 1, 2, 1, 1, Q("0.039 in")),
    Sketcher.Constraint("DistanceY", 2, 1, 2, 2, Q("1.219 in")),
])
pad6 = doc.addObject("PartDesign::Pad", "Pad005")
body5.addObject(pad6)
pad6.Profile = sketch14
pad6.Length = Q("1.181 in")

# Sketch on XZ plane
sketch15 = doc.addObject("Sketcher::SketchObject", "Sketch014")
body5.addObject(sketch15)
sketch15.AttachmentSupport = (doc.getObject("XZ_Plane004"), [""])
sketch15.MapMode = "FlatFace"
sketch15.AttachmentOffset = App.Placement(V(0, 0, -0.3 * 25.4), App.Rotation())
sketch15.addGeometry([
    Part.LineSegment(V(16, -63.9, 0), V(16, -61.4, 0)),  # 0
    Part.LineSegment(V(16, -61.4, 0), V(18.5, -61.4, 0)),  # 1
    Part.ArcOfCircle(Part.Circle(V(16, -61.4, 0), V(0, 0, 1), 2.5), math.radians(-90), math.radians(0)),  # 2
    Part.LineSegment(V(-16, -61.4, 0), V(-16, -63.9, 0)),  # 3
    Part.ArcOfCircle(Part.Circle(V(-16, -61.4, 0), V(0, 0, 1), 2.5), math.radians(-180), math.radians(-90)),  # 4
    Part.LineSegment(V(-18.5, -61.4, 0), V(-16, -61.4, 0)),  # 5
], False)
sketch15.addGeometry(Part.LineSegment(V(-18.5, -61.4, 0), V(18.5, -61.4, 0)), True)  # axis
sketch15.addConstraint([
    Sketcher.Constraint("Coincident", 0, 2, 1, 1),
    Sketcher.Constraint("Coincident", 1, 2, 2, 2),
    Sketcher.Constraint("Coincident", 2, 1, 0, 1),
    Sketcher.Constraint("Coincident", 3, 2, 4, 2),
    Sketcher.Constraint("Coincident", 4, 1, 5, 1),
    Sketcher.Constraint("Coincident", 5, 2, 3, 1),
    Sketcher.Constraint("Vertical", 0),
    Sketcher.Constraint("Horizontal", 1),
    Sketcher.Constraint("Vertical", 3),
    Sketcher.Constraint("Horizontal", 5),
    Sketcher.Constraint("Horizontal", 6),
    Sketcher.Constraint("Coincident", 0, 2, 2, 3),
    Sketcher.Constraint("Coincident", 5, 2, 4, 3),
    Sketcher.Constraint("Coincident", 6, 1, 4, 1),
    Sketcher.Constraint("Coincident", 6, 2, 1, 2),
    Sketcher.Constraint("Equal", 2, 4),
    Sketcher.Constraint("Radius", 2, Q("0.1 in")),
    Sketcher.Constraint("DistanceX", 6, 1, 6, 2, Q("1.458 in")),
    Sketcher.Constraint("DistanceX", -1, 1, 2, 3, Q("0.629 in")),
    Sketcher.Constraint("DistanceY", 2, 3, -1, 1, Q("2.417 in")),
])
revolution2 = doc.addObject("PartDesign::Revolution", "Revolution001")
body5.addObject(revolution2)
revolution2.Profile = sketch15
revolution2.ReferenceAxis = (sketch15, ["Axis0"])
revolution2.Angle = 360

# Sketch on XZ plane
sketch16 = doc.addObject("Sketcher::SketchObject", "Sketch015")
body5.addObject(sketch16)
sketch16.AttachmentSupport = (doc.getObject("XZ_Plane004"), [""])
sketch16.MapMode = "FlatFace"
sketch16.AttachmentOffset = App.Placement(V(0, 0, -1.219 * 25.4), App.Rotation())
sketch16.addGeometry(Part.Circle(V(0, -61, 0), V(0, 0, 1), 7), False)
sketch16.addConstraint([
    Sketcher.Constraint("PointOnObject", 0, 3, -2),
    Sketcher.Constraint("Diameter", 0, Q("0.59 in")),
    Sketcher.Constraint("DistanceY", 0, 3, -1, 1, Q("2.417 in")),
])
pocket4 = doc.addObject("PartDesign::Pocket", "Pocket003")
body5.addObject(pocket4)
pocket4.Profile = sketch16
pocket4.Length = Q("0.039 in")
pocket4.Reversed = True

doc.recompute()
